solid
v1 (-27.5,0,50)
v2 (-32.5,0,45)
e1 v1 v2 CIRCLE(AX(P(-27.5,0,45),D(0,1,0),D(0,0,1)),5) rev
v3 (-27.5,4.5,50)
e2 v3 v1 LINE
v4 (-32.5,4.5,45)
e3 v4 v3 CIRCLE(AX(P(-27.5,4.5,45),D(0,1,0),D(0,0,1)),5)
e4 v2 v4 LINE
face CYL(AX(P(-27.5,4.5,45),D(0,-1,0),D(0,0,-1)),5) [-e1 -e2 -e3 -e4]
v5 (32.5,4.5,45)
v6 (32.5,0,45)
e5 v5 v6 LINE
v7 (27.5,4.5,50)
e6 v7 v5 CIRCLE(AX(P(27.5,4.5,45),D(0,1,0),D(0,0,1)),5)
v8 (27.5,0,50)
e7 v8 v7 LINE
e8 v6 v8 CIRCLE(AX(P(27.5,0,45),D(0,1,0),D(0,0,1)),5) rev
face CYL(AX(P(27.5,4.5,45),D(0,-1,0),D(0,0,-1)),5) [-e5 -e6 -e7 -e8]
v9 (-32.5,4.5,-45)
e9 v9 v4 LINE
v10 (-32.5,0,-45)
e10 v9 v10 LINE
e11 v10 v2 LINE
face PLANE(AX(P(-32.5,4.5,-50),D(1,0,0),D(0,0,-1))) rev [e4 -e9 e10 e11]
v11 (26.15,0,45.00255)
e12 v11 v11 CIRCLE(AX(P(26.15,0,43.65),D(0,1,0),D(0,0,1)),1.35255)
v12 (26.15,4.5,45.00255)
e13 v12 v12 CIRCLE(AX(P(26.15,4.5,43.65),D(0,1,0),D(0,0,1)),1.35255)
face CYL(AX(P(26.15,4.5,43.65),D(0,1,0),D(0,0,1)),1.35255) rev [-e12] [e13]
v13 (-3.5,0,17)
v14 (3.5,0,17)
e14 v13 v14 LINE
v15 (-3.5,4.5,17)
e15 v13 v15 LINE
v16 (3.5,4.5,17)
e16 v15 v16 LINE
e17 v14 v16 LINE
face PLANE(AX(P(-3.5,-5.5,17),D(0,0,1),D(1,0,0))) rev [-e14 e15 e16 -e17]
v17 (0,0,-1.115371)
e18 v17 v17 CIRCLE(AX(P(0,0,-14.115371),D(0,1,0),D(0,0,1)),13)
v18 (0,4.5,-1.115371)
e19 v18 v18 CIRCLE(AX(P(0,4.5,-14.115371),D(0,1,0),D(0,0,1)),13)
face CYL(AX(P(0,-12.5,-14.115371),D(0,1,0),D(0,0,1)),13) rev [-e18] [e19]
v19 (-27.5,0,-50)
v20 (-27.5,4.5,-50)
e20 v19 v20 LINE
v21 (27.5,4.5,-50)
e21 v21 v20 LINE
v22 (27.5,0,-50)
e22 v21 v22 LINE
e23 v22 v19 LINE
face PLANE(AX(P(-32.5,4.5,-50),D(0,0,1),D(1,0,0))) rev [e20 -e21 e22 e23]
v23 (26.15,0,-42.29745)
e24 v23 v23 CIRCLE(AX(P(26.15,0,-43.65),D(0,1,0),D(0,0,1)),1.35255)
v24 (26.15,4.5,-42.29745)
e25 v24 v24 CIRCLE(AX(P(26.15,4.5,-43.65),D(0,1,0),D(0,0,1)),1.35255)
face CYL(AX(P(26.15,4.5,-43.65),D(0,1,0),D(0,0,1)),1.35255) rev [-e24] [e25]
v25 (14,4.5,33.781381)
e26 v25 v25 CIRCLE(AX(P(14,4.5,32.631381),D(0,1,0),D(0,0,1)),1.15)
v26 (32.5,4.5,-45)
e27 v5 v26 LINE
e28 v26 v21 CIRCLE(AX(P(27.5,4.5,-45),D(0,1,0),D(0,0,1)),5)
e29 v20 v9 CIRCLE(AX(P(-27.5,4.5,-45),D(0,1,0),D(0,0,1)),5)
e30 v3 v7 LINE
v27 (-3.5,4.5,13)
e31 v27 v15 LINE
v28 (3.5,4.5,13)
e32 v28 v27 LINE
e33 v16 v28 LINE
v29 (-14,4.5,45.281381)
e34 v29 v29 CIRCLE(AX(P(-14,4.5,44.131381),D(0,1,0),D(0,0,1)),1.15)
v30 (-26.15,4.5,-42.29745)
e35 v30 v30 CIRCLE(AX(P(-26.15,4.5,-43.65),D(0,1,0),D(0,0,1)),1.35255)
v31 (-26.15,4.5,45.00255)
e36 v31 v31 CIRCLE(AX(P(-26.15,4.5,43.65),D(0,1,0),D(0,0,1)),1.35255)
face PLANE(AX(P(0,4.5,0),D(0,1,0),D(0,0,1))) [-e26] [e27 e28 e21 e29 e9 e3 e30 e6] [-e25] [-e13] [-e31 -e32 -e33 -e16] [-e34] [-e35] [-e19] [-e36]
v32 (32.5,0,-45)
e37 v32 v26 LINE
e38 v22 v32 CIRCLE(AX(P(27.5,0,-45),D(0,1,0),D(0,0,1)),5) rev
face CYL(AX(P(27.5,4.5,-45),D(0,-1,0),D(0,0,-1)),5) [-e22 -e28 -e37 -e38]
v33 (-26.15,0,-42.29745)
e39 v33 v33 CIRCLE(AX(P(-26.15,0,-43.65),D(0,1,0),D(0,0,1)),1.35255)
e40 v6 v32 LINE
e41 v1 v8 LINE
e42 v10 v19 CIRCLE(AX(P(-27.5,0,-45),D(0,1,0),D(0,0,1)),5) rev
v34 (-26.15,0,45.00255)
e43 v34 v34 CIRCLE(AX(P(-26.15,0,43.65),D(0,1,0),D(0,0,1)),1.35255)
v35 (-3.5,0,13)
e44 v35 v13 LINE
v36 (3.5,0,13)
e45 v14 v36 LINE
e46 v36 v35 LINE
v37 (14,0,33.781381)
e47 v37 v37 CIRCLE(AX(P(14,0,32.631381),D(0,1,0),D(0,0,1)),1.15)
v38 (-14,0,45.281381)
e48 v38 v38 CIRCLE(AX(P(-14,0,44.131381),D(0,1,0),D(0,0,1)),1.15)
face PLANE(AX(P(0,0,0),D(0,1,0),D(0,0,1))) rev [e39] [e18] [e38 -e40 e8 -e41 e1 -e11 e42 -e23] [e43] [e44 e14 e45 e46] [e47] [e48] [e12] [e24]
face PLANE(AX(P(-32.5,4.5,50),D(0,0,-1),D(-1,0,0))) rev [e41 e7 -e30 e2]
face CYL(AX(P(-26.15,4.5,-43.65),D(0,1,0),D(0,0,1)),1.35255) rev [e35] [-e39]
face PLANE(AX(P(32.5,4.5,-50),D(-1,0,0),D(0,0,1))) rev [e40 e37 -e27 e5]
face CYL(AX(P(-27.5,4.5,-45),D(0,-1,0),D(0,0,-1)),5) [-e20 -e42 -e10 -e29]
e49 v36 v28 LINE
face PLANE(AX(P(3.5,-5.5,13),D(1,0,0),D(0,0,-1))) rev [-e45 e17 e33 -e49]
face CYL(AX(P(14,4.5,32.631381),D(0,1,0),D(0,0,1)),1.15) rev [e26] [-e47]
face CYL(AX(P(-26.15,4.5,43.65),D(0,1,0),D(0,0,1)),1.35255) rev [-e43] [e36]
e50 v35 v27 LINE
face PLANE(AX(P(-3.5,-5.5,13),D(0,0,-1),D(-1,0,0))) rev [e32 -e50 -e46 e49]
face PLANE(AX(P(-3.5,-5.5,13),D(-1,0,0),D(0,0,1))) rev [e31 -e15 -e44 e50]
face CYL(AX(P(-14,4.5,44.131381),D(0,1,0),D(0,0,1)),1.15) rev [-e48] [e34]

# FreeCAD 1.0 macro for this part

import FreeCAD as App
import Part
import Sketcher
from FreeCAD import Vector


def edges_at(feature, points):
    """Names of the edges that pass closest to the given points."""
    edges = feature.Shape.Edges
    near = lambda p: min(range(len(edges)), key=lambda i: edges[i].distToShape(Part.Vertex(*p))[0])
    return sorted({f"Edge{near(p) + 1}" for p in points})

doc = App.newDocument("Part")
body = doc.addObject("PartDesign::Body", "Body")

# Sketch on XZ plane
sketch1 = body.newObject("Sketcher::SketchObject", "Sketch")
sketch1.AttachmentSupport = (doc.getObject("XZ_Plane"), [""])
sketch1.MapMode = "FlatFace"
sketch1.addGeometry(Part.LineSegment(Vector(-32, -50, 0), Vector(-32, 50, 0)), False)
sketch1.addGeometry(Part.LineSegment(Vector(-32, 50, 0), Vector(32, 50, 0)), False)
sketch1.addGeometry(Part.LineSegment(Vector(32, 50, 0), Vector(32, -50, 0)), False)
sketch1.addGeometry(Part.LineSegment(Vector(32, -50, 0), Vector(-32, -50, 0)), False)
sketch1.addConstraint(Sketcher.Constraint("Coincident", 0, 2, 1, 1))
sketch1.addConstraint(Sketcher.Constraint("Coincident", 1, 2, 2, 1))
sketch1.addConstraint(Sketcher.Constraint("Coincident", 2, 2, 3, 1))
sketch1.addConstraint(Sketcher.Constraint("Coincident", 3, 2, 0, 1))
sketch1.addConstraint(Sketcher.Constraint("Vertical", 0))
sketch1.addConstraint(Sketcher.Constraint("Horizontal", 1))
sketch1.addConstraint(Sketcher.Constraint("Vertical", 2))
sketch1.addConstraint(Sketcher.Constraint("Horizontal", 3))
sketch1.addConstraint(Sketcher.Constraint("Symmetric", 0, 2, 2, 2, -1, 1))
sketch1.addConstraint(Sketcher.Constraint("DistanceX", 1, 1, 1, 2, 65.0))
sketch1.addConstraint(Sketcher.Constraint("DistanceY", 0, 1, 0, 2, 100.0))
pad1 = body.newObject("PartDesign::Pad", "Pad")
pad1.Profile = sketch1
pad1.Length = 4.5
pad1.Reversed = True

# Sketch on XZ plane
sketch2 = body.newObject("Sketcher::SketchObject", "Sketch001")
sketch2.AttachmentSupport = (doc.getObject("XZ_Plane"), [""])
sketch2.MapMode = "FlatFace"
sketch2.AttachmentOffset = App.Placement(Vector(0, 0, -4.5), App.Rotation())
sketch2.addGeometry(Part.Circle(Vector(-26.1, -43.6, 0), Vector(0, 0, 1), 1.4), False)
sketch2.addGeometry(Part.Circle(Vector(26.1, -43.6, 0), Vector(0, 0, 1), 1.4), False)
sketch2.addGeometry(Part.Circle(Vector(26.1, 43.6, 0), Vector(0, 0, 1), 1.4), False)
sketch2.addGeometry(Part.Circle(Vector(-26.1, 43.6, 0), Vector(0, 0, 1), 1.4), False)
sketch2.addConstraint(Sketcher.Constraint("Equal", 0, 1))
sketch2.addConstraint(Sketcher.Constraint("Equal", 1, 2))
sketch2.addConstraint(Sketcher.Constraint("Equal", 2, 3))
sketch2.addConstraint(Sketcher.Constraint("Symmetric", 0, 3, 2, 3, -1, 1))
sketch2.addConstraint(Sketcher.Constraint("Symmetric", 1, 3, 3, 3, -1, 1))
sketch2.addConstraint(Sketcher.Constraint("Symmetric", 0, 3, 1, 3, -2))
sketch2.addConstraint(Sketcher.Constraint("Diameter", 0, 2.7051))
sketch2.addConstraint(Sketcher.Constraint("DistanceX", 0, 3, 1, 3, 52.3))
sketch2.addConstraint(Sketcher.Constraint("DistanceY", 1, 3, 2, 3, 87.3))
doc.recompute()
hole = body.newObject("PartDesign::Hole", "Hole")
hole.Profile = sketch2
hole.ThreadType = "None"
hole.Diameter = 2.7051
hole.DepthType = "ThroughAll"
hole.Reversed = True
doc.recompute()

fillet = body.newObject("PartDesign::Fillet", "Fillet")
fillet.Base = (hole, edges_at(hole, [
    (32.5, 2.25, 50),
    (-32.5, 2.25, 50),
    (-32.5, 2.25, -50),
    (32.5, 2.25, -50),
]))
fillet.Radius = 5

# Sketch on XZ plane
sketch3 = body.newObject("Sketcher::SketchObject", "Sketch002")
sketch3.AttachmentSupport = (doc.getObject("XZ_Plane"), [""])
sketch3.MapMode = "FlatFace"
sketch3.AttachmentOffset = App.Placement(Vector(0, 0, -4.5), App.Rotation())
sketch3.addGeometry(Part.Circle(Vector(14, 32.6, 0), Vector(0, 0, 1), 1.1), False)
sketch3.addGeometry(Part.Circle(Vector(-14, 44.1, 0), Vector(0, 0, 1), 1.1), False)
sketch3.addConstraint(Sketcher.Constraint("Equal", 0, 1))
sketch3.addConstraint(Sketcher.Constraint("Diameter", 0, 2.3))
sketch3.addConstraint(Sketcher.Constraint("DistanceX", -1, 1, 0, 3, 14.0))
sketch3.addConstraint(Sketcher.Constraint("DistanceX", 1, 3, -1, 1, 14.0))
sketch3.addConstraint(Sketcher.Constraint("DistanceY", 0, 3, 1, 3, 11.5))
sketch3.addConstraint(Sketcher.Constraint("DistanceY", -1, 1, 0, 3, 32.631381))
doc.recompute()
hole2 = body.newObject("PartDesign::Hole", "Hole001")
hole2.Profile = sketch3
hole2.ThreadType = "None"
hole2.Diameter = 2.3
hole2.DepthType = "Dimension"
hole2.Depth = 4.5
hole2.DrillPoint = "Angled"
hole2.DrillPointAngle = 118
hole2.Reversed = True

# Sketch on XZ plane
sketch4 = body.newObject("Sketcher::SketchObject", "Sketch003")
sketch4.AttachmentSupport = (doc.getObject("XZ_Plane"), [""])
sketch4.MapMode = "FlatFace"
sketch4.AttachmentOffset = App.Placement(Vector(0, 0, -4.5), App.Rotation())
sketch4.addGeometry(Part.LineSegment(Vector(-3.5, 13, 0), Vector(-3.5, 17, 0)), False)
sketch4.addGeometry(Part.LineSegment(Vector(-3.5, 17, 0), Vector(3.5, 17, 0)), False)
sketch4.addGeometry(Part.LineSegment(Vector(3.5, 17, 0), Vector(3.5, 13, 0)), False)
sketch4.addGeometry(Part.LineSegment(Vector(3.5, 13, 0), Vector(-3.5, 13, 0)), False)
sketch4.addConstraint(Sketcher.Constraint("Coincident", 0, 2, 1, 1))
sketch4.addConstraint(Sketcher.Constraint("Coincident", 1, 2, 2, 1))
sketch4.addConstraint(Sketcher.Constraint("Coincident", 2, 2, 3, 1))
sketch4.addConstraint(Sketcher.Constraint("Coincident", 3, 2, 0, 1))
sketch4.addConstraint(Sketcher.Constraint("Vertical", 0))
sketch4.addConstraint(Sketcher.Constraint("Horizontal", 1))
sketch4.addConstraint(Sketcher.Constraint("Vertical", 2))
sketch4.addConstraint(Sketcher.Constraint("Horizontal", 3))
sketch4.addConstraint(Sketcher.Constraint("DistanceX", 1, 1, 1, 2, 7.0))
sketch4.addConstraint(Sketcher.Constraint("DistanceY", 0, 1, 0, 2, 4.0))
sketch4.addConstraint(Sketcher.Constraint("DistanceY", -1, 1, 0, 2, 17.0))
sketch4.addConstraint(Sketcher.Constraint("DistanceX", 0, 2, -1, 1, 3.5))
pocket1 = body.newObject("PartDesign::Pocket", "Pocket")
pocket1.Profile = sketch4
pocket1.Length = 10
pocket1.Reversed = True

# Sketch on XZ plane
sketch5 = body.newObject("Sketcher::SketchObject", "Sketch004")
sketch5.AttachmentSupport = (doc.getObject("XZ_Plane"), [""])
sketch5.MapMode = "FlatFace"
sketch5.AttachmentOffset = App.Placement(Vector(0, 0, -4.5), App.Rotation())
sketch5.addGeometry(Part.Circle(Vector(0, -14, 0), Vector(0, 0, 1), 13), False)
sketch5.addConstraint(Sketcher.Constraint("PointOnObject", 0, 3, -2))
sketch5.addConstraint(Sketcher.Constraint("Diameter", 0, 26.0))
sketch5.addConstraint(Sketcher.Constraint("DistanceY", 0, 3, -1, 1, 14.115371))
pocket2 = body.newObject("PartDesign::Pocket", "Pocket001")
pocket2.Profile = sketch5
pocket2.Length = 17
pocket2.Reversed = True

doc.recompute()
